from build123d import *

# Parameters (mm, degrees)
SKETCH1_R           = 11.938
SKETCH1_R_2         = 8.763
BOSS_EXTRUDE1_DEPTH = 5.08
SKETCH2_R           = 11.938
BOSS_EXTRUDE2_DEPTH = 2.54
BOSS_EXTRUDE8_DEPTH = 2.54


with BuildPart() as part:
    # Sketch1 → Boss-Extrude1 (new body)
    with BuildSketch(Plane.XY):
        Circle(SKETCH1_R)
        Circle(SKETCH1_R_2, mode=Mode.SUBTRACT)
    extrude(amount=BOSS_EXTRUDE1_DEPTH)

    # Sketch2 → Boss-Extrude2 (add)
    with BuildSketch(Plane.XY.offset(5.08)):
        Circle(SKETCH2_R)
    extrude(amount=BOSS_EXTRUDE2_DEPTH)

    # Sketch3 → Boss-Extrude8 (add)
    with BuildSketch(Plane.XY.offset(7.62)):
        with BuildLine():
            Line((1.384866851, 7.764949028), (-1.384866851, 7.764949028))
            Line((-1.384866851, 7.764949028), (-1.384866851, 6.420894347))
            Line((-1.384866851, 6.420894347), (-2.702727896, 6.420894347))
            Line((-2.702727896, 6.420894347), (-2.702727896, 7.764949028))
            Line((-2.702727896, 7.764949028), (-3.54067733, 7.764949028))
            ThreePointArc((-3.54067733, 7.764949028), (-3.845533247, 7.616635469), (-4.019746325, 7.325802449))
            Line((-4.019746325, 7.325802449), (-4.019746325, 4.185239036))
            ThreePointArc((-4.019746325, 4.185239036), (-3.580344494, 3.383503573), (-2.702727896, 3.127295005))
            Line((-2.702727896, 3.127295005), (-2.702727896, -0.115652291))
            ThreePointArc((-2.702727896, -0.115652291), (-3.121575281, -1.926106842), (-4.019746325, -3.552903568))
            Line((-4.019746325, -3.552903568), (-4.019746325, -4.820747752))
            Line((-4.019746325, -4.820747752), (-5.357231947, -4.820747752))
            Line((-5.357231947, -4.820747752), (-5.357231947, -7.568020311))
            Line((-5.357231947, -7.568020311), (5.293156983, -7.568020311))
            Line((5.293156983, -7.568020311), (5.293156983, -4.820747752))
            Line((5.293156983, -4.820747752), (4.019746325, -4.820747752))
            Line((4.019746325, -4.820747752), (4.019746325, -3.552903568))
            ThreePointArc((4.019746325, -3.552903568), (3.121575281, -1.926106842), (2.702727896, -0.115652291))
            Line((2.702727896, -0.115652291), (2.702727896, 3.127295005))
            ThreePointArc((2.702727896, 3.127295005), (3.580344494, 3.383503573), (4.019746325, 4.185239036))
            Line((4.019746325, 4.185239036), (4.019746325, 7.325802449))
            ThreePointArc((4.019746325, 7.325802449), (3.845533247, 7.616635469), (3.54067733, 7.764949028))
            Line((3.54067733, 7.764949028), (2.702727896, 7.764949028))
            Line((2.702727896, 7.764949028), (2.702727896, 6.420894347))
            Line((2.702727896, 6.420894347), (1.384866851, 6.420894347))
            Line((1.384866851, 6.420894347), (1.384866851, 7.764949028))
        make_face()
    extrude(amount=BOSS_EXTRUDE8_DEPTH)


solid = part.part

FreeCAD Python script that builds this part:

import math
import FreeCAD as App
import Part
import Sketcher
Q = App.Units.Quantity

doc = App.newDocument("Part")
params = doc.addObject("Spreadsheet::Sheet", "Params")
for row, (alias, value) in enumerate([
    ("sketch1_diameter", "0.94 in"),
    ("sketch1_diameter2", "0.69 in"),
    ("pad1_length", "0.2 in"),
    ("sketch2_diameter", "0.94 in"),
    ("pad2_length", "0.1 in"),
    ("pad3_length", "0.1 in"),
], start=1):
    params.set(f"A{row}", alias)
    params.set(f"B{row}", "=" + value)
    params.setAlias(f"B{row}", alias)

body = doc.addObject("PartDesign::Body", "Body")

# Sketch on XY plane
sketch1 = body.newObject("Sketcher::SketchObject", "Sketch")
sketch1.AttachmentSupport = (doc.getObject("XY_Plane"), [""])
sketch1.MapMode = "FlatFace"
sketch1.addGeometry([
    Part.Circle(App.Vector(0, 0, 0), App.Vector(0, 0, 1), 11.938),
    Part.Circle(App.Vector(0, 0, 0), App.Vector(0, 0, 1), 8.763),
], False)
sketch1.addConstraint([
    Sketcher.Constraint("Coincident", 0, 3, -1, 1),
    Sketcher.Constraint("Coincident", 1, 3, -1, 1),
    Sketcher.Constraint("Diameter", 0, Q("0.94 in")),
    Sketcher.Constraint("Diameter", 1, Q("0.69 in")),
])
sketch1.setExpression("Constraints[2]", "Params.sketch1_diameter")
sketch1.setExpression("Constraints[3]", "Params.sketch1_diameter2")
pad1 = body.newObject("PartDesign::Pad", "Pad")
pad1.Profile = sketch1
pad1.setExpression("Length", "Params.pad1_length")

# Sketch on XY plane
sketch2 = body.newObject("Sketcher::SketchObject", "Sketch001")
sketch2.AttachmentSupport = (doc.getObject("XY_Plane"), [""])
sketch2.MapMode = "FlatFace"
sketch2.AttachmentOffset = App.Placement(App.Vector(0, 0, 0.2 * 25.4), App.Rotation())
sketch2.addGeometry(Part.Circle(App.Vector(0, 0, 0), App.Vector(0, 0, 1), 11.938), False)
sketch2.addConstraint([
    Sketcher.Constraint("Coincident", 0, 3, -1, 1),
    Sketcher.Constraint("Diameter", 0, Q("0.94 in")),
])
sketch2.setExpression("Constraints[1]", "Params.sketch2_diameter")
pad2 = body.newObject("PartDesign::Pad", "Pad001")
pad2.Profile = sketch2
pad2.setExpression("Length", "Params.pad2_length")

# Sketch on XY plane
sketch3 = body.newObject("Sketcher::SketchObject", "Sketch002")
sketch3.AttachmentSupport = (doc.getObject("XY_Plane"), [""])
sketch3.MapMode = "FlatFace"
sketch3.AttachmentOffset = App.Placement(App.Vector(0, 0, 0.3 * 25.4), App.Rotation())
sketch3.addGeometry([
    Part.LineSegment(App.Vector(1.384867, 7.764949, 0), App.Vector(-1.384867, 7.764949, 0)),  # 0
    Part.LineSegment(App.Vector(-1.384867, 7.764949, 0), App.Vector(-1.384867, 6.420894, 0)),  # 1
    Part.LineSegment(App.Vector(-1.384867, 6.420894, 0), App.Vector(-2.702728, 6.420894, 0)),  # 2
    Part.LineSegment(App.Vector(-2.702728, 6.420894, 0), App.Vector(-2.702728, 7.764949, 0)),  # 3
    Part.LineSegment(App.Vector(-2.702728, 7.764949, 0), App.Vector(-3.540677, 7.764949, 0)),  # 4
    Part.ArcOfCircle(Part.Circle(App.Vector(-3.443833, 7.178417, 0), App.Vector(0, 0, 1), 0.594474), math.radians(99.375747), math.radians(165.645147)),  # 5
    Part.LineSegment(App.Vector(-4.019746, 7.325802, 0), App.Vector(-4.019746, 4.185239, 0)),  # 6
    Part.ArcOfCircle(Part.Circle(App.Vector(-2.832265, 4.314776, 0), App.Vector(0, 0, 1), 1.194526), math.radians(-173.774467), math.radians(-83.774467)),  # 7
    Part.LineSegment(App.Vector(-2.702728, 3.127295, 0), App.Vector(-2.702728, -0.115652, 0)),  # 8
    Part.ArcOfCircle(Part.Circle(App.Vector(-9.403577, 0.480907, 0), App.Vector(0, 0, 1), 6.727351), math.radians(-36.84222), math.radians(-5.087483)),  # 9
    Part.LineSegment(App.Vector(-4.019746, -3.552904, 0), App.Vector(-4.019746, -4.820748, 0)),  # 10
    Part.LineSegment(App.Vector(-4.019746, -4.820748, 0), App.Vector(-5.357232, -4.820748, 0)),  # 11
    Part.LineSegment(App.Vector(-5.357232, -4.820748, 0), App.Vector(-5.357232, -7.56802, 0)),  # 12
    Part.LineSegment(App.Vector(-5.357232, -7.56802, 0), App.Vector(5.293157, -7.56802, 0)),  # 13
    Part.LineSegment(App.Vector(5.293157, -7.56802, 0), App.Vector(5.293157, -4.820748, 0)),  # 14
    Part.LineSegment(App.Vector(5.293157, -4.820748, 0), App.Vector(4.019746, -4.820748, 0)),  # 15
    Part.LineSegment(App.Vector(4.019746, -4.820748, 0), App.Vector(4.019746, -3.552904, 0)),  # 16
    Part.ArcOfCircle(Part.Circle(App.Vector(9.403577, 0.480907, 0), App.Vector(0, 0, 1), 6.727351), math.radians(-174.912517), math.radians(-143.15778)),  # 17
    Part.LineSegment(App.Vector(2.702728, -0.115652, 0), App.Vector(2.702728, 3.127295, 0)),  # 18
    Part.ArcOfCircle(Part.Circle(App.Vector(2.832265, 4.314776, 0), App.Vector(0, 0, 1), 1.194526), math.radians(-96.225533), math.radians(-6.225533)),  # 19
    Part.LineSegment(App.Vector(4.019746, 4.185239, 0), App.Vector(4.019746, 7.325802, 0)),  # 20
    Part.ArcOfCircle(Part.Circle(App.Vector(3.443833, 7.178417, 0), App.Vector(0, 0, 1), 0.594474), math.radians(14.354853), math.radians(80.624253)),  # 21
    Part.LineSegment(App.Vector(3.540677, 7.764949, 0), App.Vector(2.702728, 7.764949, 0)),  # 22
    Part.LineSegment(App.Vector(2.702728, 7.764949, 0), App.Vector(2.702728, 6.420894, 0)),  # 23
    Part.LineSegment(App.Vector(2.702728, 6.420894, 0), App.Vector(1.384867, 6.420894, 0)),  # 24
    Part.LineSegment(App.Vector(1.384867, 6.420894, 0), App.Vector(1.384867, 7.764949, 0)),  # 25
], False)
sketch3.addConstraint([
    Sketcher.Constraint("Coincident", 0, 2, 1, 1),
    Sketcher.Constraint("Coincident", 1, 2, 2, 1),
    Sketcher.Constraint("Coincident", 2, 2, 3, 1),
    Sketcher.Constraint("Coincident", 3, 2, 4, 1),
    Sketcher.Constraint("Coincident", 4, 2, 5, 1),
    Sketcher.Constraint("Coincident", 5, 2, 6, 1),
    Sketcher.Constraint("Coincident", 6, 2, 7, 1),
    Sketcher.Constraint("Coincident", 7, 2, 8, 1),
    Sketcher.Constraint("Coincident", 8, 2, 9, 2),
    Sketcher.Constraint("Coincident", 9, 1, 10, 1),
    Sketcher.Constraint("Coincident", 10, 2, 11, 1),
    Sketcher.Constraint("Coincident", 11, 2, 12, 1),
    Sketcher.Constraint("Coincident", 12, 2, 13, 1),
    Sketcher.Constraint("Coincident", 13, 2, 14, 1),
    Sketcher.Constraint("Coincident", 14, 2, 15, 1),
    Sketcher.Constraint("Coincident", 15, 2, 16, 1),
    Sketcher.Constraint("Coincident", 16, 2, 17, 2),
    Sketcher.Constraint("Coincident", 17, 1, 18, 1),
    Sketcher.Constraint("Coincident", 18, 2, 19, 1),
    Sketcher.Constraint("Coincident", 19, 2, 20, 1),
    Sketcher.Constraint("Coincident", 20, 2, 21, 1),
    Sketcher.Constraint("Coincident", 21, 2, 22, 1),
    Sketcher.Constraint("Coincident", 22, 2, 23, 1),
    Sketcher.Constraint("Coincident", 23, 2, 24, 1),
    Sketcher.Constraint("Coincident", 24, 2, 25, 1),
    Sketcher.Constraint("Coincident", 25, 2, 0, 1),
    Sketcher.Constraint("Horizontal", 0),
    Sketcher.Constraint("Vertical", 1),
    Sketcher.Constraint("Horizontal", 2),
    Sketcher.Constraint("Vertical", 3),
    Sketcher.Constraint("Horizontal", 4),
    Sketcher.Constraint("Vertical", 6),
    Sketcher.Constraint("Vertical", 8),
    Sketcher.Constraint("Vertical", 10),
    Sketcher.Constraint("Horizontal", 11),
    Sketcher.Constraint("Vertical", 12),
    Sketcher.Constraint("Horizontal", 13),
    Sketcher.Constraint("Vertical", 14),
    Sketcher.Constraint("Horizontal", 15),
    Sketcher.Constraint("Vertical", 16),
    Sketcher.Constraint("Vertical", 18),
    Sketcher.Constraint("Vertical", 20),
    Sketcher.Constraint("Horizontal", 22),
    Sketcher.Constraint("Vertical", 23),
    Sketcher.Constraint("Horizontal", 24),
    Sketcher.Constraint("Vertical", 25),
    Sketcher.Constraint("Equal", 9, 17),
    Sketcher.Constraint("Equal", 7, 19),
    Sketcher.Constraint("Equal", 5, 21),
    Sketcher.Constraint("Symmetric", 9, 3, 17, 3, -2),
    Sketcher.Constraint("Symmetric", 7, 3, 19, 3, -2),
    Sketcher.Constraint("Symmetric", 5, 3, 21, 3, -2),
    Sketcher.Constraint("Symmetric", 10, 2, 15, 2, -2),
    Sketcher.Constraint("Symmetric", 3, 2, 22, 2, -2),
    Sketcher.Constraint("Symmetric", 1, 2, 24, 2, -2),
    Sketcher.Constraint("Horizontal", 0, 2, 3, 2),
    Sketcher.Constraint("Horizontal", 8, 2, 17, 1),
    Sketcher.Constraint("Horizontal", 6, 2, 19, 2),
    Sketcher.Constraint("Vertical", 3, 2, 7, 2),
    Sketcher.Constraint("Vertical", 6, 2, 9, 1),
    Sketcher.Constraint("Radius", 9, 6.727351),
    Sketcher.Constraint("DistanceY", 9, 1, 7, 2, Q("0.2629999 in")),
    Sketcher.Constraint("Radius", 5, 0.594474),
    Sketcher.Constraint("Radius", 7, 1.194526),
    Sketcher.Constraint("DistanceX", 7, 3, 2, 2, Q("0.0050999 in")),
    Sketcher.Constraint("DistanceY", 6, 2, 7, 3, Q("0.0050999 in")),
    Sketcher.Constraint("DistanceX", 2, 2, 2, 1, 1.317861),
    Sketcher.Constraint("DistanceX", 4, 2, 4, 1, 0.837949),
    Sketcher.Constraint("DistanceX", 13, 1, 13, 2, 10.650389),
    Sketcher.Constraint("DistanceX", 15, 2, 15, 1, 1.273411),
    Sketcher.Constraint("DistanceX", 0, 2, 21, 3, 4.828699),
    Sketcher.Constraint("DistanceY", 7, 2, 2, 2, 3.293599),
    Sketcher.Constraint("DistanceX", 0, 2, 0, 1, 2.769734),
    Sketcher.Constraint("DistanceY", 1, 2, 1, 1, 1.344055),
    Sketcher.Constraint("DistanceY", 8, 2, 8, 1, 3.242947),
    Sketcher.Constraint("DistanceY", 10, 2, 10, 1, 1.267844),
    Sketcher.Constraint("DistanceY", 12, 2, 12, 1, 2.747273),
    Sketcher.Constraint("DistanceY", -1, 1, 0, 2, 7.764949),
])
pad3 = body.newObject("PartDesign::Pad", "Pad002")
pad3.Profile = sketch3
pad3.setExpression("Length", "Params.pad3_length")

doc.recompute()
